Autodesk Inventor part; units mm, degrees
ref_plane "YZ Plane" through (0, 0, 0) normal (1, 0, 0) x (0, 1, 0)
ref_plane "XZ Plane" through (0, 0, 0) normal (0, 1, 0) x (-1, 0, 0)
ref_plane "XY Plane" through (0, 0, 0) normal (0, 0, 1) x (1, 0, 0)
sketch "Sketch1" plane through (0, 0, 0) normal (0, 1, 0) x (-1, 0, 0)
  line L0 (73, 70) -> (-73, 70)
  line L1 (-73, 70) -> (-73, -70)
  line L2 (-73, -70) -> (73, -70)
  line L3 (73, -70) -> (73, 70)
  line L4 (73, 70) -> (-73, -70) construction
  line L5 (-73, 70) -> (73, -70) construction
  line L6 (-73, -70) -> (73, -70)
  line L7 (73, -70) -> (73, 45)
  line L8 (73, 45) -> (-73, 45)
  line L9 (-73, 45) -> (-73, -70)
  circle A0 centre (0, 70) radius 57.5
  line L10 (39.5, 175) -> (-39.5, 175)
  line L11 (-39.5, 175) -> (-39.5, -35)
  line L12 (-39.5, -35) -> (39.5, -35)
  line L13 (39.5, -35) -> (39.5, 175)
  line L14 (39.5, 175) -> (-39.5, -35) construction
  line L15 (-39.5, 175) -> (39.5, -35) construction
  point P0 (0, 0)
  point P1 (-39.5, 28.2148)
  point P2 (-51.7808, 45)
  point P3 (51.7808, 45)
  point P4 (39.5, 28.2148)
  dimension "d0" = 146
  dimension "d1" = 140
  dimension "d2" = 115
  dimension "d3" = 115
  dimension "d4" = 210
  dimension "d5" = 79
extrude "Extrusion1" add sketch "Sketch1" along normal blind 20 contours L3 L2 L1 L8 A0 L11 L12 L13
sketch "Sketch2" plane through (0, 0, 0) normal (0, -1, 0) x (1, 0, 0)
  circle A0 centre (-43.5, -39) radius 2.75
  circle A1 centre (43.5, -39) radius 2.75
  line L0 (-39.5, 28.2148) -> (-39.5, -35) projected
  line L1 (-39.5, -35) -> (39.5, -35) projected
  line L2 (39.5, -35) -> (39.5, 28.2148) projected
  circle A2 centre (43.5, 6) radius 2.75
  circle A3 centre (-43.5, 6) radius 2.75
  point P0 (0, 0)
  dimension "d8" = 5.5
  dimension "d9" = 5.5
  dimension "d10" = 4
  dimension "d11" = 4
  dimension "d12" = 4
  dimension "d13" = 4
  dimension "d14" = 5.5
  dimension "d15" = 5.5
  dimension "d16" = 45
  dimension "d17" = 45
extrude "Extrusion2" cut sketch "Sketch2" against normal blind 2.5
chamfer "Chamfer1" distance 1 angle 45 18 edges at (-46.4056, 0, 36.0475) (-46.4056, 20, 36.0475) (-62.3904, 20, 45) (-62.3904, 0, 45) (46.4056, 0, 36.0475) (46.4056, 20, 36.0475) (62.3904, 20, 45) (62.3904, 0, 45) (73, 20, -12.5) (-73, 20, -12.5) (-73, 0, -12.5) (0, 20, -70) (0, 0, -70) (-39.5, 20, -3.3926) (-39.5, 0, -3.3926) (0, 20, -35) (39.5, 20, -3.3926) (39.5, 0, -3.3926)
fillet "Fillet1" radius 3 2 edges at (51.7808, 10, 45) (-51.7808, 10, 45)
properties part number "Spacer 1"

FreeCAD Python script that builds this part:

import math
import FreeCAD as App
import Part
import Sketcher

V = App.Vector
Q = App.Units.Quantity


def edges_at(feature, points):
    """Names of the edges that pass closest to the given points."""
    edges = feature.Shape.Edges
    near = lambda p: min(range(len(edges)), key=lambda i: edges[i].distToShape(Part.Vertex(*p))[0])
    return sorted({f"Edge{near(p) + 1}" for p in points})

doc = App.newDocument("Part")
params = doc.addObject("Spreadsheet::Sheet", "Params")
for row, (alias, value) in enumerate([
    ("sketch1_radius", "57.5 mm"),
    ("sketch1_width", "79 mm"),
    ("sketch1_width2", "146 mm"),
    ("sketch1_height", "115 mm"),
    ("pad1_length", "20 mm"),
    ("sketch2_diameter", "5.5 mm"),
    ("pocket1_length", "2.5 mm"),
    ("chamfer_size", "1 mm"),
    ("fillet_radius", "3 mm"),
], start=1):
    params.set(f"A{row}", alias)
    params.set(f"B{row}", "=" + value)
    params.setAlias(f"B{row}", alias)

body = doc.addObject("PartDesign::Body", "Body")

sketch1 = body.newObject("Sketcher::SketchObject", "Sketch")
sketch1.AttachmentSupport = (doc.getObject("XZ_Plane"), [""])
sketch1.MapMode = "FlatFace"
sketch1.addGeometry([
    Part.LineSegment(V(-73, -70, 0), V(-73, 45, 0)),
    Part.LineSegment(V(-73, 45, 0), V(-52, 45, 0)),
    Part.ArcOfCircle(Part.Circle(V(0, 70, 0), V(0, 0, 1), 58), math.radians(-154), math.radians(-133)),
    Part.LineSegment(V(-40, 28, 0), V(-40, -35, 0)),
    Part.LineSegment(V(-40, -35, 0), V(40, -35, 0)),
    Part.LineSegment(V(40, -35, 0), V(40, 28, 0)),
    Part.ArcOfCircle(Part.Circle(V(0, 70, 0), V(0, 0, 1), 58), math.radians(-47), math.radians(-26)),
    Part.LineSegment(V(52, 45, 0), V(73, 45, 0)),
    Part.LineSegment(V(73, 45, 0), V(73, -70, 0)),
    Part.LineSegment(V(73, -70, 0), V(-73, -70, 0)),
], False)
sketch1.addConstraint([
    Sketcher.Constraint("Coincident", 0, 2, 1, 1),
    Sketcher.Constraint("Coincident", 1, 2, 2, 1),
    Sketcher.Constraint("Coincident", 2, 2, 3, 1),
    Sketcher.Constraint("Coincident", 3, 2, 4, 1),
    Sketcher.Constraint("Coincident", 4, 2, 5, 1),
    Sketcher.Constraint("Coincident", 5, 2, 6, 1),
    Sketcher.Constraint("Coincident", 6, 2, 7, 1),
    Sketcher.Constraint("Coincident", 7, 2, 8, 1),
    Sketcher.Constraint("Coincident", 8, 2, 9, 1),
    Sketcher.Constraint("Coincident", 9, 2, 0, 1),
    Sketcher.Constraint("Vertical", 0),
    Sketcher.Constraint("Horizontal", 1),
    Sketcher.Constraint("Vertical", 3),
    Sketcher.Constraint("Horizontal", 4),
    Sketcher.Constraint("Vertical", 5),
    Sketcher.Constraint("Horizontal", 7),
    Sketcher.Constraint("Vertical", 8),
    Sketcher.Constraint("Horizontal", 9),
    Sketcher.Constraint("Coincident", 6, 3, 2, 3),
    Sketcher.Constraint("Equal", 2, 6),
    Sketcher.Constraint("Symmetric", 2, 2, 5, 2, -2),
    Sketcher.Constraint("Symmetric", 0, 2, 7, 2, -2),
    Sketcher.Constraint("Radius", 2, Q("57.5 mm")),
    Sketcher.Constraint("DistanceX", 4, 1, 4, 2, Q("79 mm")),
    Sketcher.Constraint("DistanceX", 9, 2, 9, 1, Q("146 mm")),
    Sketcher.Constraint("DistanceY", 0, 1, 0, 2, Q("115 mm")),
    Sketcher.Constraint("DistanceY", -1, 1, 2, 3, Q("70 mm")),
    Sketcher.Constraint("DistanceY", -1, 1, 0, 2, Q("45 mm")),
    Sketcher.Constraint("DistanceY", 3, 2, -1, 1, Q("35 mm")),
])
sketch1.setExpression("Constraints[22]", "Params.sketch1_radius")
sketch1.setExpression("Constraints[23]", "Params.sketch1_width")
sketch1.setExpression("Constraints[24]", "Params.sketch1_width2")
sketch1.setExpression("Constraints[25]", "Params.sketch1_height")
pad1 = body.newObject("PartDesign::Pad", "Pad")
pad1.Profile = sketch1
pad1.setExpression("Length", "Params.pad1_length")
pad1.Reversed = True

sketch2 = body.newObject("Sketcher::SketchObject", "Sketch001")
sketch2.AttachmentSupport = (doc.getObject("XZ_Plane"), [""])
sketch2.MapMode = "FlatFace"
sketch2.addGeometry([
    Part.Circle(V(-43.5, -39, 0), V(0, 0, 1), 2.8),
    Part.Circle(V(43.5, -39, 0), V(0, 0, 1), 2.8),
    Part.Circle(V(43.5, 6, 0), V(0, 0, 1), 2.8),
    Part.Circle(V(-43.5, 6, 0), V(0, 0, 1), 2.8),
], False)
sketch2.addConstraint([
    Sketcher.Constraint("Equal", 0, 1),
    Sketcher.Constraint("Equal", 1, 2),
    Sketcher.Constraint("Equal", 2, 3),
    Sketcher.Constraint("Symmetric", 0, 3, 1, 3, -2),
    Sketcher.Constraint("Symmetric", 2, 3, 3, 3, -2),
    Sketcher.Constraint("Vertical", 1, 3, 2, 3),
    Sketcher.Constraint("Diameter", 0, Q("5.5 mm")),
    Sketcher.Constraint("DistanceY", 1, 3, 2, 3, Q("45 mm")),
    Sketcher.Constraint("DistanceY", 0, 3, -1, 1, Q("39 mm")),
    Sketcher.Constraint("DistanceX", 0, 3, 1, 3, Q("87 mm")),
])
sketch2.setExpression("Constraints[6]", "Params.sketch2_diameter")
pocket1 = body.newObject("PartDesign::Pocket", "Pocket")
pocket1.Profile = sketch2
pocket1.setExpression("Length", "Params.pocket1_length")
doc.recompute()

chamfer = body.newObject("PartDesign::Chamfer", "Chamfer")
chamfer.Base = (pocket1, edges_at(pocket1, [
    (-46.406, 0, 36.047),
    (-46.406, 20, 36.047),
    (-62.39, 20, 45),
    (-62.39, 0, 45),
    (46.406, 0, 36.047),
    (46.406, 20, 36.047),
    (62.39, 20, 45),
    (62.39, 0, 45),
    (73, 20, -12.5),
    (-73, 20, -12.5),
    (-73, 0, -12.5),
    (0, 20, -70),
    (0, 0, -70),
    (-39.5, 20, -3.393),
    (-39.5, 0, -3.393),
    (0, 20, -35),
    (39.5, 20, -3.393),
    (39.5, 0, -3.393),
]))
chamfer.setExpression("Size", "Params.chamfer_size")
doc.recompute()

fillet = body.newObject("PartDesign::Fillet", "Fillet")
fillet.Base = (chamfer, edges_at(chamfer, [(51.781, 10, 45), (-51.781, 10, 45)]))
fillet.setExpression("Radius", "Params.fillet_radius")

doc.recompute()
